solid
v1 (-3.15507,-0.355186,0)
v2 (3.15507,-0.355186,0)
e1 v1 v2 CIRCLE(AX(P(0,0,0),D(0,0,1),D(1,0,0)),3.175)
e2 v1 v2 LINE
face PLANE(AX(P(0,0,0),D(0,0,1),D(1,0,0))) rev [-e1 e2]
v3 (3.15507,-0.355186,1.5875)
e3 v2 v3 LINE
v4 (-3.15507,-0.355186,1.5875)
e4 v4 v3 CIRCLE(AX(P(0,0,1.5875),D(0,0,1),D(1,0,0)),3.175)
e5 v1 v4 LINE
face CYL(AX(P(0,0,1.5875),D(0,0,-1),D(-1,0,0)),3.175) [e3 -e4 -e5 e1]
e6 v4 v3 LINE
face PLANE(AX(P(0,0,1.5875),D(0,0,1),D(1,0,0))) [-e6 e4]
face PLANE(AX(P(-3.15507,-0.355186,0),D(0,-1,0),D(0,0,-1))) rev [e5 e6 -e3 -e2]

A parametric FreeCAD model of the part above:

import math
import FreeCAD as App
import Part
import Sketcher
from FreeCAD import Vector
Q = App.Units.Quantity

doc = App.newDocument("Part")
body = doc.addObject("PartDesign::Body", "Body")

# Sketch on XY plane
sketch1 = body.newObject("Sketcher::SketchObject", "Sketch")
sketch1.AttachmentSupport = (doc.getObject("XY_Plane"), [""])
sketch1.MapMode = "FlatFace"
sketch1.addGeometry(Part.Circle(Vector(0, 0, 0), Vector(0, 0, 1), 3.2), False)
sketch1.addConstraint(Sketcher.Constraint("Coincident", 0, 3, -1, 1))
sketch1.addConstraint(Sketcher.Constraint("Diameter", 0, Q("0.25 in")))
pad1 = body.newObject("PartDesign::Pad", "Pad")
pad1.Profile = sketch1
pad1.Length = Q("0.0625 in")

# Sketch on XY plane
sketch2 = body.newObject("Sketcher::SketchObject", "Sketch001")
sketch2.AttachmentSupport = (doc.getObject("XY_Plane"), [""])
sketch2.MapMode = "FlatFace"
sketch2.AttachmentOffset = App.Placement(Vector(0, 0, 0.0625 * 25.4), App.Rotation())
sketch2.addGeometry(Part.LineSegment(Vector(-3.2, -0.4, 0), Vector(3.2, -0.4, 0)), False)
sketch2.addGeometry(Part.ArcOfCircle(Part.Circle(Vector(0, 0, 0), Vector(0, 0, 1), 3.2), math.radians(-6), math.radians(186)), False)
sketch2.addConstraint(Sketcher.Constraint("Coincident", 0, 1, 1, 2))
sketch2.addConstraint(Sketcher.Constraint("Coincident", 1, 1, 0, 2))
sketch2.addConstraint(Sketcher.Constraint("Horizontal", 0))
sketch2.addConstraint(Sketcher.Constraint("Coincident", 1, 3, -1, 1))
sketch2.addConstraint(Sketcher.Constraint("Radius", 1, Q("0.125 in")))
sketch2.addConstraint(Sketcher.Constraint("DistanceX", 0, 1, 0, 2, Q("6.31014 mm")))
pocket1 = body.newObject("PartDesign::Pocket", "Pocket")
pocket1.Profile = sketch2
pocket1.Type = "ThroughAll"

doc.recompute()
